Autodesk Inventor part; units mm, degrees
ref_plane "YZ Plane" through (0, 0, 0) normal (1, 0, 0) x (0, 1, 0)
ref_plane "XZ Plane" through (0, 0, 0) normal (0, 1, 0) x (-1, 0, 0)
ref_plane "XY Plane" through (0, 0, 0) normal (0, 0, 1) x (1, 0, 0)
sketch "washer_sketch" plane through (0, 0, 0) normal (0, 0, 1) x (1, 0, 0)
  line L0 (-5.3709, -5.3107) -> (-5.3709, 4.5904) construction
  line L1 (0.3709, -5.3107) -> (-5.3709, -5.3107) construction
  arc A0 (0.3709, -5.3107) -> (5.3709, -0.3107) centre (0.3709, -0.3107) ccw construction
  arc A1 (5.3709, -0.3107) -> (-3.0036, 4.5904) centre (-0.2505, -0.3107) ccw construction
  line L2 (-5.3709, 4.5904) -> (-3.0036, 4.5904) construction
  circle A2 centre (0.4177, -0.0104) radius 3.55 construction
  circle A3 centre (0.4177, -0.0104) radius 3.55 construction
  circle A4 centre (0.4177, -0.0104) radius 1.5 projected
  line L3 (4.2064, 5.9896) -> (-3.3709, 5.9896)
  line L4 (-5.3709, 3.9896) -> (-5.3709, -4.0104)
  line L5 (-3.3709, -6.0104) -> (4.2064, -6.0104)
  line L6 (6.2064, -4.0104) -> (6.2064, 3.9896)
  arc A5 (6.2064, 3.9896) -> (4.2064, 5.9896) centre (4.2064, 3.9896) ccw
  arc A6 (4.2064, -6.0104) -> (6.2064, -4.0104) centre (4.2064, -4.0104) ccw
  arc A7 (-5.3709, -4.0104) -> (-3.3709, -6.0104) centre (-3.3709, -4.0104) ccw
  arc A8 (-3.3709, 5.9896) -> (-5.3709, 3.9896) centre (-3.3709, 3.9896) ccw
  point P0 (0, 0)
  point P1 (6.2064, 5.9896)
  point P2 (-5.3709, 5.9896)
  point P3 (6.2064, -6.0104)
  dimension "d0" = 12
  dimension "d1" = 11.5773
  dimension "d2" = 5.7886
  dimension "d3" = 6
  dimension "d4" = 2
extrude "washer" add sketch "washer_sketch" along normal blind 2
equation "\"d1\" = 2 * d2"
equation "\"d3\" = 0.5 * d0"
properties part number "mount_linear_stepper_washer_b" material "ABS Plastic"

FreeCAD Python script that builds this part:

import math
import FreeCAD as App
import Part
import Sketcher

V = App.Vector
Q = App.Units.Quantity

doc = App.newDocument("Part")
body = doc.addObject("PartDesign::Body", "Body")

# Sketch on XY plane
sketch1 = doc.addObject("Sketcher::SketchObject", "Sketch")
body.addObject(sketch1)
sketch1.AttachmentSupport = (doc.XY_Plane, [""])
sketch1.MapMode = "FlatFace"
sketch1.addGeometry(Part.ArcOfCircle(Part.Circle(V(4.2, 4, 0), V(0, 0, 1), 2), math.radians(0), math.radians(90)), False)
sketch1.addGeometry(Part.LineSegment(V(4.2, 6, 0), V(-3.4, 6, 0)), False)
sketch1.addGeometry(Part.ArcOfCircle(Part.Circle(V(-3.4, 4, 0), V(0, 0, 1), 2), math.radians(90), math.radians(180)), False)
sketch1.addGeometry(Part.LineSegment(V(-5.4, 4, 0), V(-5.4, -4, 0)), False)
sketch1.addGeometry(Part.ArcOfCircle(Part.Circle(V(-3.4, -4, 0), V(0, 0, 1), 2), math.radians(180), math.radians(270)), False)
sketch1.addGeometry(Part.LineSegment(V(-3.4, -6, 0), V(4.2, -6, 0)), False)
sketch1.addGeometry(Part.ArcOfCircle(Part.Circle(V(4.2, -4, 0), V(0, 0, 1), 2), math.radians(-90), math.radians(0)), False)
sketch1.addGeometry(Part.LineSegment(V(6.2, -4, 0), V(6.2, 4, 0)), False)
sketch1.addGeometry(Part.Circle(V(0.4, 0, 0), V(0, 0, 1), 1.5), False)
sketch1.addConstraint(Sketcher.Constraint("Tangent", 0, 2, 1, 1))
sketch1.addConstraint(Sketcher.Constraint("Tangent", 1, 2, 2, 1))
sketch1.addConstraint(Sketcher.Constraint("Tangent", 2, 2, 3, 1))
sketch1.addConstraint(Sketcher.Constraint("Tangent", 3, 2, 4, 1))
sketch1.addConstraint(Sketcher.Constraint("Tangent", 4, 2, 5, 1))
sketch1.addConstraint(Sketcher.Constraint("Tangent", 5, 2, 6, 1))
sketch1.addConstraint(Sketcher.Constraint("Tangent", 6, 2, 7, 1))
sketch1.addConstraint(Sketcher.Constraint("Tangent", 7, 2, 0, 1))
sketch1.addConstraint(Sketcher.Constraint("Horizontal", 1))
sketch1.addConstraint(Sketcher.Constraint("Vertical", 3))
sketch1.addConstraint(Sketcher.Constraint("Horizontal", 5))
sketch1.addConstraint(Sketcher.Constraint("Vertical", 7))
sketch1.addConstraint(Sketcher.Constraint("Equal", 0, 2))
sketch1.addConstraint(Sketcher.Constraint("Equal", 2, 4))
sketch1.addConstraint(Sketcher.Constraint("Equal", 4, 6))
sketch1.addConstraint(Sketcher.Constraint("Radius", 0, Q("2 mm")))
sketch1.addConstraint(Sketcher.Constraint("Diameter", 8, Q("3 mm")))
sketch1.addConstraint(Sketcher.Constraint("DistanceY", 8, 3, 0, 2, Q("6 mm")))
sketch1.addConstraint(Sketcher.Constraint("DistanceY", 4, 2, 8, 3, Q("6 mm")))
sketch1.addConstraint(Sketcher.Constraint("DistanceX", 2, 2, 8, 3, Q("5.7886 mm")))
sketch1.addConstraint(Sketcher.Constraint("DistanceX", 8, 3, 6, 2, Q("5.7887 mm")))
sketch1.addConstraint(Sketcher.Constraint("DistanceX", 2, 3, -1, 1, Q("3.371 mm")))
sketch1.addConstraint(Sketcher.Constraint("DistanceY", -1, 1, 0, 3, Q("3.9896 mm")))
pad1 = doc.addObject("PartDesign::Pad", "Pad")
body.addObject(pad1)
pad1.Profile = sketch1
pad1.Length = 2

doc.recompute()
